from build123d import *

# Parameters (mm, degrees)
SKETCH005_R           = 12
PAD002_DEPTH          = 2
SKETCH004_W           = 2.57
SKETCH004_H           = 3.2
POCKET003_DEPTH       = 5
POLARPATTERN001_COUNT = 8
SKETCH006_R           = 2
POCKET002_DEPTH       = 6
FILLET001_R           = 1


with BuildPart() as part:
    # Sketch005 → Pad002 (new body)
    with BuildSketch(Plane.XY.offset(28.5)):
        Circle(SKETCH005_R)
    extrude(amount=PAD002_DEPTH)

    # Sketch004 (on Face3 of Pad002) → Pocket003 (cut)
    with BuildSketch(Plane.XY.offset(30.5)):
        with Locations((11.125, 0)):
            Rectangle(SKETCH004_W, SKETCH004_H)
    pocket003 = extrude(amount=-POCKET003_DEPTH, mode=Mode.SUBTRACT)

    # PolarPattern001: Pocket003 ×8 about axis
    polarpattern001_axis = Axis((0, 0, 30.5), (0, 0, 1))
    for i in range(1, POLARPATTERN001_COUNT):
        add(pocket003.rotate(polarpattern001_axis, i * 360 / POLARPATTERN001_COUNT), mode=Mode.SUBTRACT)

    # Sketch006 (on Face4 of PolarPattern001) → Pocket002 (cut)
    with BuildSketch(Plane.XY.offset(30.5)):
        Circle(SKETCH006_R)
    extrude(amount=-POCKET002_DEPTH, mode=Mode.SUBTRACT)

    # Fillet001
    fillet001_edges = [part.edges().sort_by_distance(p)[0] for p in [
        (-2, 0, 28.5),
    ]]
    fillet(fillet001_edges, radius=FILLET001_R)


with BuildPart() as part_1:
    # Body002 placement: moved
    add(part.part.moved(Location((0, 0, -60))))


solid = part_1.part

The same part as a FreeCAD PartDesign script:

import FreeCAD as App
import Part
import Sketcher
Q = App.Units.Quantity


def edges_at(feature, points):
    """Names of the edges that pass closest to the given points."""
    edges = feature.Shape.Edges
    near = lambda p: min(range(len(edges)), key=lambda i: edges[i].distToShape(Part.Vertex(*p))[0])
    return sorted({f"Edge{near(p) + 1}" for p in points})


def add_polygon(sketch, points):
    """Adds a closed chain of lines whose ends are joined by coincident constraints."""
    first, n = sketch.GeometryCount, len(points)
    for a, b in zip(points, points[1:] + points[:1]):
        sketch.addGeometry(Part.LineSegment(App.Vector(*a, 0), App.Vector(*b, 0)), False)
    for i in range(n):
        sketch.addConstraint(Sketcher.Constraint("Coincident", first + i, 2, first + (i + 1) % n, 1))

doc = App.newDocument("Part")
body = doc.addObject("PartDesign::Body", "Body")

sketch1 = body.newObject("Sketcher::SketchObject", "Sketch")
sketch1.AttachmentSupport = (doc.getObject("XY_Plane"), [""])
sketch1.MapMode = "FlatFace"
sketch1.AttachmentOffset = App.Placement(App.Vector(0, 0, 28.5), App.Rotation())
sketch1.addGeometry(Part.Circle(App.Vector(0, 0, 0), App.Vector(0, 0, 1), 12), False)
sketch1.addConstraint(Sketcher.Constraint("Coincident", 0, 3, -1, 1))
sketch1.addConstraint(Sketcher.Constraint("Diameter", 0, Q("24 mm")))
pad1 = body.newObject("PartDesign::Pad", "Pad")
pad1.Profile = sketch1
pad1.Length = 2

sketch2 = body.newObject("Sketcher::SketchObject", "Sketch001")
sketch2.AttachmentSupport = (doc.getObject("XY_Plane"), [""])
sketch2.MapMode = "FlatFace"
sketch2.AttachmentOffset = App.Placement(App.Vector(0, 0, 30.5), App.Rotation())
add_polygon(sketch2, [(9.8, 1.6), (9.8, -1.6), (12.4, -1.6), (12.4, 1.6)])
sketch2.addConstraint(Sketcher.Constraint("Vertical", 0))
sketch2.addConstraint(Sketcher.Constraint("Horizontal", 1))
sketch2.addConstraint(Sketcher.Constraint("Vertical", 2))
sketch2.addConstraint(Sketcher.Constraint("Horizontal", 3))
sketch2.addConstraint(Sketcher.Constraint("DistanceY", 0, 2, 0, 1, Q("3.2 mm")))
sketch2.addConstraint(Sketcher.Constraint("DistanceX", 1, 1, 1, 2, Q("2.57 mm")))
sketch2.addConstraint(Sketcher.Constraint("DistanceY", 0, 2, -1, 1, Q("1.6 mm")))
sketch2.addConstraint(Sketcher.Constraint("DistanceX", -1, 1, 0, 2, Q("9.84 mm")))
pocket1 = body.newObject("PartDesign::Pocket", "Pocket")
pocket1.Profile = sketch2
pocket1.Length = 5
doc.recompute()

polarpattern = body.newObject("PartDesign::PolarPattern", "PolarPattern")
polarpattern.Originals = [pocket1]
polarpattern.Axis = (doc.getObject("Z_Axis"), [""])
polarpattern.Angle = 360
polarpattern.Occurrences = 8
body.Tip = polarpattern

sketch3 = body.newObject("Sketcher::SketchObject", "Sketch002")
sketch3.AttachmentSupport = (doc.getObject("XY_Plane"), [""])
sketch3.MapMode = "FlatFace"
sketch3.AttachmentOffset = App.Placement(App.Vector(0, 0, 30.5), App.Rotation())
sketch3.addGeometry(Part.Circle(App.Vector(0, 0, 0), App.Vector(0, 0, 1), 2), False)
sketch3.addConstraint(Sketcher.Constraint("Coincident", 0, 3, -1, 1))
sketch3.addConstraint(Sketcher.Constraint("Diameter", 0, Q("4 mm")))
pocket2 = body.newObject("PartDesign::Pocket", "Pocket001")
pocket2.Profile = sketch3
pocket2.Length = 6
doc.recompute()

fillet = body.newObject("PartDesign::Fillet", "Fillet")
fillet.Base = (pocket2, edges_at(pocket2, [(-2, 0, 28.5)]))
fillet.Radius = 1
body2 = doc.addObject("PartDesign::Body", "Body001")
doc.recompute()

body.Placement = App.Placement(App.Vector(0, 0, -60), App.Rotation(App.Vector(0, 0, 1), 0))
boolean = body2.newObject("PartDesign::Boolean", "Boolean")
boolean.Type = "Fuse"
boolean.addObjects([body])

doc.recompute()
